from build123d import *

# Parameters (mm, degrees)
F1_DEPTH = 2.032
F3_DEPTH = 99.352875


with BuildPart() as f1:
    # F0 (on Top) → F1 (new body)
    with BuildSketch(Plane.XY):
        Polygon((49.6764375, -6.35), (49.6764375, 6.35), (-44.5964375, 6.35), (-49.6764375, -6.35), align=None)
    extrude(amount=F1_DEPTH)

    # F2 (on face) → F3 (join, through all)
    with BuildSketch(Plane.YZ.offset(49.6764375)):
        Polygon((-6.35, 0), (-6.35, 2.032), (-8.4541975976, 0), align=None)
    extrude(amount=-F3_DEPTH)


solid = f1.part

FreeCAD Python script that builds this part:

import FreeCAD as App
import Part
import Sketcher
from FreeCAD import Vector
Q = App.Units.Quantity

doc = App.newDocument("Part")
params = doc.addObject("Spreadsheet::Sheet", "Params")
for row, (alias, value) in enumerate([
    ("sketch1_height", "0.5 in"),
    ("pad1_length", "0.08 in"),
    ("sketch2_height", "0.08 in"),
    ("pad2_length", "99.352875 mm"),
], start=1):
    params.set(f"A{row}", alias)
    params.set(f"B{row}", "=" + value)
    params.setAlias(f"B{row}", alias)

body = doc.addObject("PartDesign::Body", "Body")

sketch1 = doc.addObject("Sketcher::SketchObject", "Sketch")
body.addObject(sketch1)
sketch1.AttachmentSupport = (doc.XY_Plane, [""])
sketch1.MapMode = "FlatFace"
sketch1.addGeometry(Part.LineSegment(Vector(49.676437, -6.35, 0), Vector(49.676437, 6.35, 0)), False)
sketch1.addGeometry(Part.LineSegment(Vector(49.676437, 6.35, 0), Vector(-44.596438, 6.35, 0)), False)
sketch1.addGeometry(Part.LineSegment(Vector(-44.596438, 6.35, 0), Vector(-49.676437, -6.35, 0)), False)
sketch1.addGeometry(Part.LineSegment(Vector(-49.676437, -6.35, 0), Vector(49.676437, -6.35, 0)), False)
sketch1.addConstraint(Sketcher.Constraint("Coincident", 0, 2, 1, 1))
sketch1.addConstraint(Sketcher.Constraint("Coincident", 1, 2, 2, 1))
sketch1.addConstraint(Sketcher.Constraint("Coincident", 2, 2, 3, 1))
sketch1.addConstraint(Sketcher.Constraint("Coincident", 3, 2, 0, 1))
sketch1.addConstraint(Sketcher.Constraint("Vertical", 0))
sketch1.addConstraint(Sketcher.Constraint("Horizontal", 1))
sketch1.addConstraint(Sketcher.Constraint("Horizontal", 3))
sketch1.addConstraint(Sketcher.Constraint("Symmetric", 0, 2, 2, 2, -1, 1))
sketch1.addConstraint(Sketcher.Constraint("DistanceY", 0, 1, 0, 2, Q("0.5 in")))
sketch1.addConstraint(Sketcher.Constraint("DistanceX", 2, 2, 1, 2, Q("0.2 in")))
sketch1.addConstraint(Sketcher.Constraint("DistanceX", 1, 2, 1, 1, Q("94.272875 mm")))
sketch1.setExpression("Constraints[8]", "Params.sketch1_height")
pad1 = doc.addObject("PartDesign::Pad", "Pad")
body.addObject(pad1)
pad1.Profile = sketch1
pad1.setExpression("Length", "Params.pad1_length")

sketch2 = doc.addObject("Sketcher::SketchObject", "Sketch001")
body.addObject(sketch2)
sketch2.AttachmentSupport = (doc.YZ_Plane, [""])
sketch2.MapMode = "FlatFace"
sketch2.AttachmentOffset = App.Placement(Vector(0, 0, 49.676437), App.Rotation())
sketch2.addGeometry(Part.LineSegment(Vector(-6.35, 0, 0), Vector(-6.35, 2.032, 0)), False)
sketch2.addGeometry(Part.LineSegment(Vector(-6.35, 2.032, 0), Vector(-8.454198, 0, 0)), False)
sketch2.addGeometry(Part.LineSegment(Vector(-8.454198, 0, 0), Vector(-6.35, 0, 0)), False)
sketch2.addConstraint(Sketcher.Constraint("Coincident", 0, 2, 1, 1))
sketch2.addConstraint(Sketcher.Constraint("Coincident", 1, 2, 2, 1))
sketch2.addConstraint(Sketcher.Constraint("Coincident", 2, 2, 0, 1))
sketch2.addConstraint(Sketcher.Constraint("Vertical", 0))
sketch2.addConstraint(Sketcher.Constraint("Horizontal", 2))
sketch2.addConstraint(Sketcher.Constraint("PointOnObject", 1, 2, -1))
sketch2.addConstraint(Sketcher.Constraint("Angle", 1, Q("-136 deg")))
sketch2.addConstraint(Sketcher.Constraint("DistanceY", 0, 1, 0, 2, Q("0.08 in")))
sketch2.addConstraint(Sketcher.Constraint("DistanceX", 0, 2, -1, 1, Q("0.25 in")))
sketch2.setExpression("Constraints[7]", "Params.sketch2_height")
pad2 = doc.addObject("PartDesign::Pad", "Pad001")
body.addObject(pad2)
pad2.Profile = sketch2
pad2.setExpression("Length", "Params.pad2_length")
pad2.Reversed = True

doc.recompute()
